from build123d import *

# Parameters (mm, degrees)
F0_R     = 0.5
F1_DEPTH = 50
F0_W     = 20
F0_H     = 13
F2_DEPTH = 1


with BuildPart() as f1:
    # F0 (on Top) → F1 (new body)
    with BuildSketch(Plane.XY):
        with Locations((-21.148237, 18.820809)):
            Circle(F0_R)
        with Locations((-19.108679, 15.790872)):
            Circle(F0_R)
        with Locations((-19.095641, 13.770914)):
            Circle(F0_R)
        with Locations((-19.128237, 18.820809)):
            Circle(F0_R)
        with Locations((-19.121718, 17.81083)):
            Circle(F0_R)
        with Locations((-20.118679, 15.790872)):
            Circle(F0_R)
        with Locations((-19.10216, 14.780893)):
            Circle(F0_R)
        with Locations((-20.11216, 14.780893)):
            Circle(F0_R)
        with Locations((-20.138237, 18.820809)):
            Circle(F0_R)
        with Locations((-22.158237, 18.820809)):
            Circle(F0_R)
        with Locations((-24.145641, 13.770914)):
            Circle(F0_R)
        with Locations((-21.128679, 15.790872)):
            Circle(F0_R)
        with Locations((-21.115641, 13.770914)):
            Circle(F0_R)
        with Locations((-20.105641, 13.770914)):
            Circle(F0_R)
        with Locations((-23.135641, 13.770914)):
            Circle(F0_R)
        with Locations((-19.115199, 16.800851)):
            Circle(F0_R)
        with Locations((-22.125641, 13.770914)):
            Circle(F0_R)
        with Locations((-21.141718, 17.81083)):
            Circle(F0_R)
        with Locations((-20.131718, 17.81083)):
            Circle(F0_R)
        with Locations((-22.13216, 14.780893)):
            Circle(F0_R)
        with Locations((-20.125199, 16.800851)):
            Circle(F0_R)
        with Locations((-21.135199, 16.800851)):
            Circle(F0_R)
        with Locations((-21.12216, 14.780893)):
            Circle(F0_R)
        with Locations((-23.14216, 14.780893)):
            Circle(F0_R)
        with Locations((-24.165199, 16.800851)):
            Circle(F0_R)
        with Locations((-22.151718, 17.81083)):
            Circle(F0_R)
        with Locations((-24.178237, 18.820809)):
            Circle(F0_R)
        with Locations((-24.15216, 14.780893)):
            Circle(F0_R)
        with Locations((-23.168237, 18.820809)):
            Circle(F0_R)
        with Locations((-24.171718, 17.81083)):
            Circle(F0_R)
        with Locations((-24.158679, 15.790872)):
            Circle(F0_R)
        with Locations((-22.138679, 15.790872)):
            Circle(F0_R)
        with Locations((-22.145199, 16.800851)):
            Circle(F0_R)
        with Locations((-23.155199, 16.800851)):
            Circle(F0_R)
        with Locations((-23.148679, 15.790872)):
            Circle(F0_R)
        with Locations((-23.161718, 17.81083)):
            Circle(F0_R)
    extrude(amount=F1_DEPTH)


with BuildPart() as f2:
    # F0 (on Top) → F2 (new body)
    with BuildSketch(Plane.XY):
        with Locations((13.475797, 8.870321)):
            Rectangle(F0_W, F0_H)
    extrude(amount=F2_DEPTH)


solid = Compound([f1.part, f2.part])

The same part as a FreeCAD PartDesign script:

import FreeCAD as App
import Part
import Sketcher

doc = App.newDocument("Part")
params = doc.addObject("Spreadsheet::Sheet", "Params")
for row, (alias, value) in enumerate([
    ("sketch1_diameter", "1 mm"),
    ("pad1_length", "50 mm"),
    ("sketch2_width", "20 mm"),
    ("sketch2_height", "13 mm"),
    ("pad2_length", "1 mm"),
], start=1):
    params.set(f"A{row}", alias)
    params.set(f"B{row}", "=" + value)
    params.setAlias(f"B{row}", alias)

body = doc.addObject("PartDesign::Body", "Body")
body.AllowCompound = True

sketch1 = body.newObject("Sketcher::SketchObject", "Sketch")
sketch1.AttachmentSupport = (doc.getObject("XY_Plane"), [""])
sketch1.MapMode = "FlatFace"
sketch1.addGeometry(Part.Circle(App.Vector(-21.1, 18.8, 0), App.Vector(0, 0, 1), 0.5), False)
sketch1.addGeometry(Part.Circle(App.Vector(-19.1, 15.8, 0), App.Vector(0, 0, 1), 0.5), False)
sketch1.addGeometry(Part.Circle(App.Vector(-19.1, 13.8, 0), App.Vector(0, 0, 1), 0.5), False)
sketch1.addGeometry(Part.Circle(App.Vector(-19.1, 18.8, 0), App.Vector(0, 0, 1), 0.5), False)
sketch1.addGeometry(Part.Circle(App.Vector(-19.1, 17.8, 0), App.Vector(0, 0, 1), 0.5), False)
sketch1.addGeometry(Part.Circle(App.Vector(-20.1, 15.8, 0), App.Vector(0, 0, 1), 0.5), False)
sketch1.addGeometry(Part.Circle(App.Vector(-19.1, 14.8, 0), App.Vector(0, 0, 1), 0.5), False)
sketch1.addGeometry(Part.Circle(App.Vector(-20.1, 14.8, 0), App.Vector(0, 0, 1), 0.5), False)
sketch1.addGeometry(Part.Circle(App.Vector(-20.1, 18.8, 0), App.Vector(0, 0, 1), 0.5), False)
sketch1.addGeometry(Part.Circle(App.Vector(-22.2, 18.8, 0), App.Vector(0, 0, 1), 0.5), False)
sketch1.addGeometry(Part.Circle(App.Vector(-24.1, 13.8, 0), App.Vector(0, 0, 1), 0.5), False)
sketch1.addGeometry(Part.Circle(App.Vector(-21.1, 15.8, 0), App.Vector(0, 0, 1), 0.5), False)
sketch1.addGeometry(Part.Circle(App.Vector(-21.1, 13.8, 0), App.Vector(0, 0, 1), 0.5), False)
sketch1.addGeometry(Part.Circle(App.Vector(-20.1, 13.8, 0), App.Vector(0, 0, 1), 0.5), False)
sketch1.addGeometry(Part.Circle(App.Vector(-23.1, 13.8, 0), App.Vector(0, 0, 1), 0.5), False)
sketch1.addGeometry(Part.Circle(App.Vector(-19.1, 16.8, 0), App.Vector(0, 0, 1), 0.5), False)
sketch1.addGeometry(Part.Circle(App.Vector(-22.1, 13.8, 0), App.Vector(0, 0, 1), 0.5), False)
sketch1.addGeometry(Part.Circle(App.Vector(-21.1, 17.8, 0), App.Vector(0, 0, 1), 0.5), False)
sketch1.addGeometry(Part.Circle(App.Vector(-20.1, 17.8, 0), App.Vector(0, 0, 1), 0.5), False)
sketch1.addGeometry(Part.Circle(App.Vector(-22.1, 14.8, 0), App.Vector(0, 0, 1), 0.5), False)
sketch1.addGeometry(Part.Circle(App.Vector(-20.1, 16.8, 0), App.Vector(0, 0, 1), 0.5), False)
sketch1.addGeometry(Part.Circle(App.Vector(-21.1, 16.8, 0), App.Vector(0, 0, 1), 0.5), False)
sketch1.addGeometry(Part.Circle(App.Vector(-21.1, 14.8, 0), App.Vector(0, 0, 1), 0.5), False)
sketch1.addGeometry(Part.Circle(App.Vector(-23.1, 14.8, 0), App.Vector(0, 0, 1), 0.5), False)
sketch1.addGeometry(Part.Circle(App.Vector(-24.2, 16.8, 0), App.Vector(0, 0, 1), 0.5), False)
sketch1.addGeometry(Part.Circle(App.Vector(-22.2, 17.8, 0), App.Vector(0, 0, 1), 0.5), False)
sketch1.addGeometry(Part.Circle(App.Vector(-24.2, 18.8, 0), App.Vector(0, 0, 1), 0.5), False)
sketch1.addGeometry(Part.Circle(App.Vector(-24.2, 14.8, 0), App.Vector(0, 0, 1), 0.5), False)
sketch1.addGeometry(Part.Circle(App.Vector(-23.2, 18.8, 0), App.Vector(0, 0, 1), 0.5), False)
sketch1.addGeometry(Part.Circle(App.Vector(-24.2, 17.8, 0), App.Vector(0, 0, 1), 0.5), False)
sketch1.addGeometry(Part.Circle(App.Vector(-24.2, 15.8, 0), App.Vector(0, 0, 1), 0.5), False)
sketch1.addGeometry(Part.Circle(App.Vector(-22.1, 15.8, 0), App.Vector(0, 0, 1), 0.5), False)
sketch1.addGeometry(Part.Circle(App.Vector(-22.1, 16.8, 0), App.Vector(0, 0, 1), 0.5), False)
sketch1.addGeometry(Part.Circle(App.Vector(-23.2, 16.8, 0), App.Vector(0, 0, 1), 0.5), False)
sketch1.addGeometry(Part.Circle(App.Vector(-23.1, 15.8, 0), App.Vector(0, 0, 1), 0.5), False)
sketch1.addGeometry(Part.Circle(App.Vector(-23.2, 17.8, 0), App.Vector(0, 0, 1), 0.5), False)
sketch1.addConstraint(Sketcher.Constraint("Equal", 0, 1))
sketch1.addConstraint(Sketcher.Constraint("Equal", 1, 2))
sketch1.addConstraint(Sketcher.Constraint("Equal", 2, 3))
sketch1.addConstraint(Sketcher.Constraint("Equal", 3, 4))
sketch1.addConstraint(Sketcher.Constraint("Equal", 4, 5))
sketch1.addConstraint(Sketcher.Constraint("Equal", 5, 6))
sketch1.addConstraint(Sketcher.Constraint("Equal", 6, 7))
sketch1.addConstraint(Sketcher.Constraint("Equal", 7, 8))
sketch1.addConstraint(Sketcher.Constraint("Equal", 8, 9))
sketch1.addConstraint(Sketcher.Constraint("Equal", 9, 10))
sketch1.addConstraint(Sketcher.Constraint("Equal", 10, 11))
sketch1.addConstraint(Sketcher.Constraint("Equal", 11, 12))
sketch1.addConstraint(Sketcher.Constraint("Equal", 12, 13))
sketch1.addConstraint(Sketcher.Constraint("Equal", 13, 14))
sketch1.addConstraint(Sketcher.Constraint("Equal", 14, 15))
sketch1.addConstraint(Sketcher.Constraint("Equal", 15, 16))
sketch1.addConstraint(Sketcher.Constraint("Equal", 16, 17))
sketch1.addConstraint(Sketcher.Constraint("Equal", 17, 18))
sketch1.addConstraint(Sketcher.Constraint("Equal", 18, 19))
sketch1.addConstraint(Sketcher.Constraint("Equal", 19, 20))
sketch1.addConstraint(Sketcher.Constraint("Equal", 20, 21))
sketch1.addConstraint(Sketcher.Constraint("Equal", 21, 22))
sketch1.addConstraint(Sketcher.Constraint("Equal", 22, 23))
sketch1.addConstraint(Sketcher.Constraint("Equal", 23, 24))
sketch1.addConstraint(Sketcher.Constraint("Equal", 24, 25))
sketch1.addConstraint(Sketcher.Constraint("Equal", 25, 26))
sketch1.addConstraint(Sketcher.Constraint("Equal", 26, 27))
sketch1.addConstraint(Sketcher.Constraint("Equal", 27, 28))
sketch1.addConstraint(Sketcher.Constraint("Equal", 28, 29))
sketch1.addConstraint(Sketcher.Constraint("Equal", 29, 30))
sketch1.addConstraint(Sketcher.Constraint("Equal", 30, 31))
sketch1.addConstraint(Sketcher.Constraint("Equal", 31, 32))
sketch1.addConstraint(Sketcher.Constraint("Equal", 32, 33))
sketch1.addConstraint(Sketcher.Constraint("Equal", 33, 34))
sketch1.addConstraint(Sketcher.Constraint("Equal", 34, 35))
sketch1.addConstraint(Sketcher.Constraint("Horizontal", 0, 3, 3, 3))
sketch1.addConstraint(Sketcher.Constraint("Horizontal", 1, 3, 5, 3))
sketch1.addConstraint(Sketcher.Constraint("Horizontal", 6, 3, 7, 3))
sketch1.addConstraint(Sketcher.Constraint("Horizontal", 3, 3, 8, 3))
sketch1.addConstraint(Sketcher.Constraint("Horizontal", 8, 3, 9, 3))
sketch1.addConstraint(Sketcher.Constraint("Horizontal", 2, 3, 10, 3))
sketch1.addConstraint(Sketcher.Constraint("Horizontal", 5, 3, 11, 3))
sketch1.addConstraint(Sketcher.Constraint("Horizontal", 10, 3, 12, 3))
sketch1.addConstraint(Sketcher.Constraint("Horizontal", 12, 3, 13, 3))
sketch1.addConstraint(Sketcher.Constraint("Horizontal", 13, 3, 14, 3))
sketch1.addConstraint(Sketcher.Constraint("Horizontal", 14, 3, 16, 3))
sketch1.addConstraint(Sketcher.Constraint("Horizontal", 4, 3, 17, 3))
sketch1.addConstraint(Sketcher.Constraint("Horizontal", 17, 3, 18, 3))
sketch1.addConstraint(Sketcher.Constraint("Horizontal", 7, 3, 19, 3))
sketch1.addConstraint(Sketcher.Constraint("Horizontal", 15, 3, 20, 3))
sketch1.addConstraint(Sketcher.Constraint("Horizontal", 20, 3, 21, 3))
sketch1.addConstraint(Sketcher.Constraint("Horizontal", 19, 3, 22, 3))
sketch1.addConstraint(Sketcher.Constraint("Horizontal", 22, 3, 23, 3))
sketch1.addConstraint(Sketcher.Constraint("Horizontal", 21, 3, 24, 3))
sketch1.addConstraint(Sketcher.Constraint("Horizontal", 18, 3, 25, 3))
sketch1.addConstraint(Sketcher.Constraint("Horizontal", 9, 3, 26, 3))
sketch1.addConstraint(Sketcher.Constraint("Horizontal", 23, 3, 27, 3))
sketch1.addConstraint(Sketcher.Constraint("Horizontal", 26, 3, 28, 3))
sketch1.addConstraint(Sketcher.Constraint("Horizontal", 25, 3, 29, 3))
sketch1.addConstraint(Sketcher.Constraint("Horizontal", 11, 3, 30, 3))
sketch1.addConstraint(Sketcher.Constraint("Horizontal", 30, 3, 31, 3))
sketch1.addConstraint(Sketcher.Constraint("Horizontal", 24, 3, 32, 3))
sketch1.addConstraint(Sketcher.Constraint("Horizontal", 32, 3, 33, 3))
sketch1.addConstraint(Sketcher.Constraint("Horizontal", 31, 3, 34, 3))
sketch1.addConstraint(Sketcher.Constraint("Horizontal", 29, 3, 35, 3))
sketch1.addConstraint(Sketcher.Constraint("Diameter", 0, 1.0))
sketch1.addConstraint(Sketcher.Constraint("DistanceX", 0, 3, 3, 3, 2.02))
sketch1.addConstraint(Sketcher.Constraint("DistanceX", 5, 3, 1, 3, 1.01))
sketch1.addConstraint(Sketcher.Constraint("DistanceX", 7, 3, 6, 3, 1.01))
sketch1.addConstraint(Sketcher.Constraint("DistanceX", 0, 3, 8, 3, 1.01))
sketch1.addConstraint(Sketcher.Constraint("DistanceX", 9, 3, 0, 3, 1.01))
sketch1.addConstraint(Sketcher.Constraint("DistanceX", 10, 3, 2, 3, 5.05))
sketch1.addConstraint(Sketcher.Constraint("DistanceX", 11, 3, 5, 3, 1.01))
sketch1.addConstraint(Sketcher.Constraint("DistanceX", 12, 3, 2, 3, 2.02))
sketch1.addConstraint(Sketcher.Constraint("DistanceX", 13, 3, 2, 3, 1.01))
sketch1.addConstraint(Sketcher.Constraint("DistanceX", 10, 3, 14, 3, 1.01))
sketch1.addConstraint(Sketcher.Constraint("DistanceX", 14, 3, 16, 3, 1.01))
sketch1.addConstraint(Sketcher.Constraint("DistanceX", 17, 3, 4, 3, 2.02))
sketch1.addConstraint(Sketcher.Constraint("DistanceX", 18, 3, 4, 3, 1.01))
sketch1.addConstraint(Sketcher.Constraint("DistanceX", 19, 3, 7, 3, 2.02))
sketch1.addConstraint(Sketcher.Constraint("DistanceX", 20, 3, 15, 3, 1.01))
sketch1.addConstraint(Sketcher.Constraint("DistanceX", 21, 3, 20, 3, 1.01))
sketch1.addConstraint(Sketcher.Constraint("DistanceX", 19, 3, 22, 3, 1.01))
sketch1.addConstraint(Sketcher.Constraint("DistanceX", 23, 3, 19, 3, 1.01))
sketch1.addConstraint(Sketcher.Constraint("DistanceX", 24, 3, 21, 3, 3.03))
sketch1.addConstraint(Sketcher.Constraint("DistanceX", 25, 3, 17, 3, 1.01))
sketch1.addConstraint(Sketcher.Constraint("DistanceX", 26, 3, 9, 3, 2.02))
sketch1.addConstraint(Sketcher.Constraint("DistanceX", 27, 3, 23, 3, 1.01))
sketch1.addConstraint(Sketcher.Constraint("DistanceX", 26, 3, 28, 3, 1.01))
sketch1.addConstraint(Sketcher.Constraint("DistanceX", 29, 3, 25, 3, 2.02))
sketch1.addConstraint(Sketcher.Constraint("DistanceX", 31, 3, 11, 3, 1.01))
sketch1.addConstraint(Sketcher.Constraint("DistanceX", 32, 3, 21, 3, 1.01))
sketch1.addConstraint(Sketcher.Constraint("DistanceX", 33, 3, 32, 3, 1.01))
sketch1.addConstraint(Sketcher.Constraint("DistanceX", 30, 3, 34, 3, 1.01))
sketch1.addConstraint(Sketcher.Constraint("DistanceX", 34, 3, 31, 3, 1.01))
sketch1.addConstraint(Sketcher.Constraint("DistanceX", 29, 3, 35, 3, 1.01))
sketch1.addConstraint(Sketcher.Constraint("DistanceX", 15, 3, -1, 1, 19.115199))
sketch1.addConstraint(Sketcher.Constraint("DistanceY", -1, 1, 0, 3, 18.820809))
sketch1.addConstraint(Sketcher.Constraint("DistanceX", 1, 3, -1, 1, 19.108679))
sketch1.addConstraint(Sketcher.Constraint("DistanceX", 2, 3, -1, 1, 19.095641))
sketch1.addConstraint(Sketcher.Constraint("DistanceX", 4, 3, -1, 1, 19.121718))
sketch1.addConstraint(Sketcher.Constraint("DistanceY", -1, 1, 4, 3, 17.81083))
sketch1.addConstraint(Sketcher.Constraint("DistanceX", 6, 3, -1, 1, 19.10216))
sketch1.addConstraint(Sketcher.Constraint("DistanceY", -1, 1, 15, 3, 16.800851))
sketch1.addConstraint(Sketcher.Constraint("DistanceX", 0, 3, 1, 3, 2.039558))
sketch1.addConstraint(Sketcher.Constraint("DistanceY", 2, 3, 1, 3, 2.019958))
sketch1.addConstraint(Sketcher.Constraint("DistanceY", 6, 3, 1, 3, 1.009979))
sketch1.addConstraint(Sketcher.Constraint("DistanceY", 1, 3, 15, 3, 1.009979))
sketch1.setExpression("Constraints[65]", "Params.sketch1_diameter")
pad1 = body.newObject("PartDesign::Pad", "Pad")
pad1.Profile = sketch1
pad1.setExpression("Length", "Params.pad1_length")
body2 = doc.addObject("PartDesign::Body", "Body001")

sketch2 = body2.newObject("Sketcher::SketchObject", "Sketch001")
sketch2.AttachmentSupport = (doc.getObject("XY_Plane001"), [""])
sketch2.MapMode = "FlatFace"
sketch2.addGeometry(Part.LineSegment(App.Vector(3, 15, 0), App.Vector(3, 2, 0)), False)
sketch2.addGeometry(Part.LineSegment(App.Vector(3, 2, 0), App.Vector(23, 2, 0)), False)
sketch2.addGeometry(Part.LineSegment(App.Vector(23, 2, 0), App.Vector(23, 15, 0)), False)
sketch2.addGeometry(Part.LineSegment(App.Vector(23, 15, 0), App.Vector(3, 15, 0)), False)
sketch2.addConstraint(Sketcher.Constraint("Coincident", 0, 2, 1, 1))
sketch2.addConstraint(Sketcher.Constraint("Coincident", 1, 2, 2, 1))
sketch2.addConstraint(Sketcher.Constraint("Coincident", 2, 2, 3, 1))
sketch2.addConstraint(Sketcher.Constraint("Coincident", 3, 2, 0, 1))
sketch2.addConstraint(Sketcher.Constraint("Vertical", 0))
sketch2.addConstraint(Sketcher.Constraint("Horizontal", 1))
sketch2.addConstraint(Sketcher.Constraint("Vertical", 2))
sketch2.addConstraint(Sketcher.Constraint("Horizontal", 3))
sketch2.addConstraint(Sketcher.Constraint("DistanceX", 1, 1, 1, 2, 20.0))
sketch2.addConstraint(Sketcher.Constraint("DistanceY", 0, 2, 0, 1, 13.0))
sketch2.addConstraint(Sketcher.Constraint("DistanceY", -1, 1, 0, 2, 2.370321))
sketch2.addConstraint(Sketcher.Constraint("DistanceX", -1, 1, 0, 2, 3.475797))
sketch2.setExpression("Constraints[8]", "Params.sketch2_width")
sketch2.setExpression("Constraints[9]", "Params.sketch2_height")
pad2 = body2.newObject("PartDesign::Pad", "Pad001")
pad2.Profile = sketch2
pad2.setExpression("Length", "Params.pad2_length")

doc.recompute()
